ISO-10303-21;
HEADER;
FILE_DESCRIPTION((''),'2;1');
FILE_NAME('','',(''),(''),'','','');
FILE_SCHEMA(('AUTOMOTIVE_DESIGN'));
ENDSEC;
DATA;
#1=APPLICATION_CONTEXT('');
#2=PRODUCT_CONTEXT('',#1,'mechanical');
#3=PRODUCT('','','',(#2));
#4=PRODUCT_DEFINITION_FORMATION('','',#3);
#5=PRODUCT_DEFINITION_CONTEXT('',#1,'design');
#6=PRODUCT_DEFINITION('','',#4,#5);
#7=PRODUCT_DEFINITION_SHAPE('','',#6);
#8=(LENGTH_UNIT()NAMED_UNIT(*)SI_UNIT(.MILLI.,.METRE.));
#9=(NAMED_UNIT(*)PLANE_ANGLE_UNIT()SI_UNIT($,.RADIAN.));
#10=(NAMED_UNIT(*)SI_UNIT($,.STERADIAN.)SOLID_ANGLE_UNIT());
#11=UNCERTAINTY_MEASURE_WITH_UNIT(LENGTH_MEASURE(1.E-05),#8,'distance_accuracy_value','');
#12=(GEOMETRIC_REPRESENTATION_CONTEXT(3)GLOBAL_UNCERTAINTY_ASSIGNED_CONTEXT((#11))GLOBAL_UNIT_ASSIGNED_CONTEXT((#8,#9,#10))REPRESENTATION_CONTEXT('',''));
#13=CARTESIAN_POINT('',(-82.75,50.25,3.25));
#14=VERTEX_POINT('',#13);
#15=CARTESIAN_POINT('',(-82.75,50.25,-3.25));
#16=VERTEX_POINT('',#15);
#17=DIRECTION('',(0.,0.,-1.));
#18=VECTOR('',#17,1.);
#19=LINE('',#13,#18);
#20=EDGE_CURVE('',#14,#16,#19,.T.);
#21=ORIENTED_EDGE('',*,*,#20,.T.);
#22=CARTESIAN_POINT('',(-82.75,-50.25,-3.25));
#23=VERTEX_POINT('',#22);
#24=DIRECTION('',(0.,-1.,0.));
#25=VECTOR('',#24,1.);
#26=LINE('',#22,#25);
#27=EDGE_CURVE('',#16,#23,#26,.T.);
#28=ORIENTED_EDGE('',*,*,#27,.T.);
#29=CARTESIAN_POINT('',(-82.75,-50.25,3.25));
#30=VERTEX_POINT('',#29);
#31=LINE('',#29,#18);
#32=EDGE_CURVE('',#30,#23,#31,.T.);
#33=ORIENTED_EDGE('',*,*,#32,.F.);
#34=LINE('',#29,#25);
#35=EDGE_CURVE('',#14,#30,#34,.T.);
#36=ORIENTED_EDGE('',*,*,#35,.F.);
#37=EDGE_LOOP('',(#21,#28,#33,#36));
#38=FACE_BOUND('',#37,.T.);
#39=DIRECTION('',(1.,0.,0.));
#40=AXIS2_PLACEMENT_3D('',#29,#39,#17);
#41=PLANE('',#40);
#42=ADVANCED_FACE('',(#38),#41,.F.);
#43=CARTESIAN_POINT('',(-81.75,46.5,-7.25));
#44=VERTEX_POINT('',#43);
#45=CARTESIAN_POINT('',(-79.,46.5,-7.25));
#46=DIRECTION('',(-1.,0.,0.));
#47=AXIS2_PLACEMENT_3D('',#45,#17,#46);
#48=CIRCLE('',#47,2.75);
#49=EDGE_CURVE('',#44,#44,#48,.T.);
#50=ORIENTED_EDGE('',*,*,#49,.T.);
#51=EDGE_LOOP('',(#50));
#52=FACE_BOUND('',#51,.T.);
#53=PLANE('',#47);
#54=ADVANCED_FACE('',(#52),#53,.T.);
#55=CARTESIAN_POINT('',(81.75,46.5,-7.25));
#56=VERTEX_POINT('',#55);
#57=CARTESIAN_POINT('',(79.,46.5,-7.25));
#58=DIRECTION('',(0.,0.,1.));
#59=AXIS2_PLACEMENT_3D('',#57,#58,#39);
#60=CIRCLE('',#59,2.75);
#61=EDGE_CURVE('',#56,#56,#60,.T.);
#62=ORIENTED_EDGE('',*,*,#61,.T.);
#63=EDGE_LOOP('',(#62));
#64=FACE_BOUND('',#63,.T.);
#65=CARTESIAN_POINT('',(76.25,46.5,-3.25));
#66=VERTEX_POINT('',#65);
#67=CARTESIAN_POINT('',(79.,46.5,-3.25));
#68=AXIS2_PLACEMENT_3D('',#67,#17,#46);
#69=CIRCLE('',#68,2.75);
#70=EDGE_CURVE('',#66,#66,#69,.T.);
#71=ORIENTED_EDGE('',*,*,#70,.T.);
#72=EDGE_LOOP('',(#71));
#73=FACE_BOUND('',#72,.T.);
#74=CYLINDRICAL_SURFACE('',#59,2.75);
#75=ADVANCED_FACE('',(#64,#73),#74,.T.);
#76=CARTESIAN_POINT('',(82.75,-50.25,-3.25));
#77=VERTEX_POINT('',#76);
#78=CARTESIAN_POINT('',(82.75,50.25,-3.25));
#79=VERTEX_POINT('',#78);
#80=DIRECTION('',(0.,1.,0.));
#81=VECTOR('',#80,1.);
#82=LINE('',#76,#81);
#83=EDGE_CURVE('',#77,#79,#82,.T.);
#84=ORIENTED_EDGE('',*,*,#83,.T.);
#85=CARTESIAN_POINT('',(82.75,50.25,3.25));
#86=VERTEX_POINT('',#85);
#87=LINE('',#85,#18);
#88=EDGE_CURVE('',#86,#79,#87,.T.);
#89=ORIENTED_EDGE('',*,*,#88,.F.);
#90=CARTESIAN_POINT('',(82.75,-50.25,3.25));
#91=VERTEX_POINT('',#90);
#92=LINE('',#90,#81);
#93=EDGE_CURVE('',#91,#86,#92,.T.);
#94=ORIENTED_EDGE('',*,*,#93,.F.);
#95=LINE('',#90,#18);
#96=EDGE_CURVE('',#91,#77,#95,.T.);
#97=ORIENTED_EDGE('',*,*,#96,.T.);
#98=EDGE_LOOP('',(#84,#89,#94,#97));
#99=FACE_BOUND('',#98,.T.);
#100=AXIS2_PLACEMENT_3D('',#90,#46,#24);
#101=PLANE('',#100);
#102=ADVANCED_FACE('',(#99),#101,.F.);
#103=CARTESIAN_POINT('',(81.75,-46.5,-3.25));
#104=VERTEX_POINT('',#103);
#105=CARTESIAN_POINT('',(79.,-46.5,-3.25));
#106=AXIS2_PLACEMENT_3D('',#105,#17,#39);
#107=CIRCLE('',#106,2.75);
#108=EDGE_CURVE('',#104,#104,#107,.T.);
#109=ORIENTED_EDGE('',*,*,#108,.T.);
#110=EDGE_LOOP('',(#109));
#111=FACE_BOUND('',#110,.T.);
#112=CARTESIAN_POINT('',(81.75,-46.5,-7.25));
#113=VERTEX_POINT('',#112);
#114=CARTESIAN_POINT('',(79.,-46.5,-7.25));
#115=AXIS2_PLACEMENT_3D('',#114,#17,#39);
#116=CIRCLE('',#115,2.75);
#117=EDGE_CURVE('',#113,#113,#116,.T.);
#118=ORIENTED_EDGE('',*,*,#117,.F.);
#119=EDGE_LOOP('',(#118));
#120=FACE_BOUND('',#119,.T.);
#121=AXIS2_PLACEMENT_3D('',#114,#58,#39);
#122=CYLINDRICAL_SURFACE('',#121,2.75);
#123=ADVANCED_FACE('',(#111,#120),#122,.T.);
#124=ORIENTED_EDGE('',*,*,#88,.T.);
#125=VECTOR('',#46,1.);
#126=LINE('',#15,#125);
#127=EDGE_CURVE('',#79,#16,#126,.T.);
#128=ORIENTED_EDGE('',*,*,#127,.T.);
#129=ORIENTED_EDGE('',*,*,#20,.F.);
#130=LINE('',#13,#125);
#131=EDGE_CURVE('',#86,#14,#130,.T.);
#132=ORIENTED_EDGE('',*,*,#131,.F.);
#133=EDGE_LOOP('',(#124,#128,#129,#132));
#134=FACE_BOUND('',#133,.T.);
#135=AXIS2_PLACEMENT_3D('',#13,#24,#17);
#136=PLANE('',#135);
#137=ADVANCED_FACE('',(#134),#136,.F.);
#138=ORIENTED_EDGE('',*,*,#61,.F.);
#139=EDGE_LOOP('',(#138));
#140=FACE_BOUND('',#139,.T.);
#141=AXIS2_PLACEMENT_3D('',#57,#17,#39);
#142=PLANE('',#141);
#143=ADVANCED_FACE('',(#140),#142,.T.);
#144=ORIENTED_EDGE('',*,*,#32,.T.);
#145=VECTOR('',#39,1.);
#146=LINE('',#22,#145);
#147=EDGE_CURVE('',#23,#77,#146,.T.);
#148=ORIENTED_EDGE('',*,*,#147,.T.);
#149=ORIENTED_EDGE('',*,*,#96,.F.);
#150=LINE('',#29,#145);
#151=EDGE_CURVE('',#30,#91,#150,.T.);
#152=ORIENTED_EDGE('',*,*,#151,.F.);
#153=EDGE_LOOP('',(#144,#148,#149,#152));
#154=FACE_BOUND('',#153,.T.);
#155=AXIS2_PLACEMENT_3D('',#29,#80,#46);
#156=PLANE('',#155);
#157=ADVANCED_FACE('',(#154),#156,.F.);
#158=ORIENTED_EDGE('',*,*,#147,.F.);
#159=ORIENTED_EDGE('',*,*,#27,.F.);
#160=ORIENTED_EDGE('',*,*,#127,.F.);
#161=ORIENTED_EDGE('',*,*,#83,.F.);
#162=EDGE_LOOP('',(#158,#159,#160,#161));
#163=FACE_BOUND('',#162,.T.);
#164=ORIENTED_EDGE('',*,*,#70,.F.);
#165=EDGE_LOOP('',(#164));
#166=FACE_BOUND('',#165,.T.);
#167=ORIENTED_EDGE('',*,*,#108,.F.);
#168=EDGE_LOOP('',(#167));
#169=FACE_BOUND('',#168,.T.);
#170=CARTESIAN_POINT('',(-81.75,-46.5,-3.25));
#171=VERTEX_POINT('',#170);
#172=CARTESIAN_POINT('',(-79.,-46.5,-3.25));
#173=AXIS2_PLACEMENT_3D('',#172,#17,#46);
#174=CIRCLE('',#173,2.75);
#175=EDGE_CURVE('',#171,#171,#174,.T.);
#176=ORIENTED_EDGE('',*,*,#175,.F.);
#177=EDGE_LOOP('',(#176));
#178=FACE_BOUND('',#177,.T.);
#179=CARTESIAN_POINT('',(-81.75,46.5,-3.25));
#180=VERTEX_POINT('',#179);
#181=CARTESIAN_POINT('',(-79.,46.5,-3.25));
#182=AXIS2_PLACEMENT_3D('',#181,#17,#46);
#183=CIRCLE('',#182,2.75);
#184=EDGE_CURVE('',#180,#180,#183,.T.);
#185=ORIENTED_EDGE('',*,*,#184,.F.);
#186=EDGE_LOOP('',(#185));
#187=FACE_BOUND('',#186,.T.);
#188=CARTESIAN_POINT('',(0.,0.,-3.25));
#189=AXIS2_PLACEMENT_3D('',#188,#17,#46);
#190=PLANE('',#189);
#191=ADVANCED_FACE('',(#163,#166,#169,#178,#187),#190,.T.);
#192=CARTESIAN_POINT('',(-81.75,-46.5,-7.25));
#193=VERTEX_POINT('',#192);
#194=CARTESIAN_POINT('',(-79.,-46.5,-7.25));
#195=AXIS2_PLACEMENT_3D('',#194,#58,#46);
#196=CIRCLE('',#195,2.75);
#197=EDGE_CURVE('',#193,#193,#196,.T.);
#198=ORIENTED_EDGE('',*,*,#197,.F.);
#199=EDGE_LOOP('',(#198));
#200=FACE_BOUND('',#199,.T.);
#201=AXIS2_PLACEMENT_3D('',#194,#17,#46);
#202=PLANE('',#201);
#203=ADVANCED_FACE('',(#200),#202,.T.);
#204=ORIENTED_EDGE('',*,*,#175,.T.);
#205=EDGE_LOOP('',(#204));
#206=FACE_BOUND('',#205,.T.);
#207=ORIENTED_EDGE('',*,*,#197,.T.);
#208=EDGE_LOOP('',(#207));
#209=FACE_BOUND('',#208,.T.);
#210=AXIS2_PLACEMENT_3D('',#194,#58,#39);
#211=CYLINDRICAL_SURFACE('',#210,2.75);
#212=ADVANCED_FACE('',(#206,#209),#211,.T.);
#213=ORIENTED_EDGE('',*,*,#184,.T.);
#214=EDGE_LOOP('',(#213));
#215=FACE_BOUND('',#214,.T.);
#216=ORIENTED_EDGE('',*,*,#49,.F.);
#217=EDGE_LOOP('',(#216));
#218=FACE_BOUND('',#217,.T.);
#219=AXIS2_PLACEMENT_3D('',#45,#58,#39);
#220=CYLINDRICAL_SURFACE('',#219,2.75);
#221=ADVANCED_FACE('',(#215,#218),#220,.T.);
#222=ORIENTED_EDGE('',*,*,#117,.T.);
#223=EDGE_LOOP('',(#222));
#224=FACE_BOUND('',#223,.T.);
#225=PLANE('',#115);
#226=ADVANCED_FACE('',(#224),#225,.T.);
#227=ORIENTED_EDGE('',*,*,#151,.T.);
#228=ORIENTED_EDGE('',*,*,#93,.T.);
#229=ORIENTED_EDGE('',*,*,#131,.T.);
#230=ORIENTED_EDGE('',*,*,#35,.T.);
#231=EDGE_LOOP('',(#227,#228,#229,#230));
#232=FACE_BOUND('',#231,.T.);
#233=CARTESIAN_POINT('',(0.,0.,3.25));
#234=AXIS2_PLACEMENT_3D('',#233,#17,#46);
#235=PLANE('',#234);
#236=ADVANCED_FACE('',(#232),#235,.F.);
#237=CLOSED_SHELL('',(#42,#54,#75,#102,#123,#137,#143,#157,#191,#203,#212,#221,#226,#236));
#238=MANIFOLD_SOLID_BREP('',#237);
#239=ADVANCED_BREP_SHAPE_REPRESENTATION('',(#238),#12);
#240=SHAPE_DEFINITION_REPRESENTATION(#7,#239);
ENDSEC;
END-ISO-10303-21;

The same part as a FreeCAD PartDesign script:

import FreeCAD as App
import Part
import Sketcher

doc = App.newDocument("Part")
body = doc.addObject("PartDesign::Body", "Body")

# Sketch on XY plane
sketch1 = body.newObject("Sketcher::SketchObject", "Sketch")
sketch1.AttachmentSupport = (doc.getObject("XY_Plane"), [""])
sketch1.MapMode = "FlatFace"
sketch1.addGeometry(Part.LineSegment(App.Vector(-83, 50, 0), App.Vector(-83, -50, 0)), False)
sketch1.addGeometry(Part.LineSegment(App.Vector(-83, -50, 0), App.Vector(83, -50, 0)), False)
sketch1.addGeometry(Part.LineSegment(App.Vector(83, -50, 0), App.Vector(83, 50, 0)), False)
sketch1.addGeometry(Part.LineSegment(App.Vector(83, 50, 0), App.Vector(-83, 50, 0)), False)
sketch1.addConstraint(Sketcher.Constraint("Coincident", 0, 2, 1, 1))
sketch1.addConstraint(Sketcher.Constraint("Coincident", 1, 2, 2, 1))
sketch1.addConstraint(Sketcher.Constraint("Coincident", 2, 2, 3, 1))
sketch1.addConstraint(Sketcher.Constraint("Coincident", 3, 2, 0, 1))
sketch1.addConstraint(Sketcher.Constraint("Vertical", 0))
sketch1.addConstraint(Sketcher.Constraint("Horizontal", 1))
sketch1.addConstraint(Sketcher.Constraint("Vertical", 2))
sketch1.addConstraint(Sketcher.Constraint("Horizontal", 3))
sketch1.addConstraint(Sketcher.Constraint("Symmetric", 0, 2, 2, 2, -1, 1))
sketch1.addConstraint(Sketcher.Constraint("DistanceX", 1, 1, 1, 2, 165.5))
sketch1.addConstraint(Sketcher.Constraint("DistanceY", 0, 2, 0, 1, 100.5))
pad1 = body.newObject("PartDesign::Pad", "Pad")
pad1.Profile = sketch1
pad1.Length = 6.5
pad1.Midplane = True

# Sketch on XY plane
sketch2 = body.newObject("Sketcher::SketchObject", "Sketch001")
sketch2.AttachmentSupport = (doc.getObject("XY_Plane"), [""])
sketch2.MapMode = "FlatFace"
sketch2.AttachmentOffset = App.Placement(App.Vector(0, 0, -3.25), App.Rotation())
sketch2.addGeometry(Part.Circle(App.Vector(-79, 46.5, 0), App.Vector(0, 0, 1), 2.8), False)
sketch2.addConstraint(Sketcher.Constraint("Diameter", 0, 5.5))
sketch2.addConstraint(Sketcher.Constraint("DistanceX", 0, 3, -1, 1, 79.0))
sketch2.addConstraint(Sketcher.Constraint("DistanceY", -1, 1, 0, 3, 46.5))
pad2 = body.newObject("PartDesign::Pad", "Pad001")
pad2.Profile = sketch2
pad2.Length = 4
pad2.Reversed = True
doc.recompute()

mirrored = body.newObject("PartDesign::Mirrored", "Mirrored")
mirrored.Originals = [pad2]
mirrored.MirrorPlane = (doc.getObject("XZ_Plane"), [""])
body.Tip = mirrored
doc.recompute()

mirrored2 = body.newObject("PartDesign::Mirrored", "Mirrored001")
mirrored2.Originals = [pad2]
mirrored2.MirrorPlane = (doc.getObject("YZ_Plane"), [""])
body.Tip = mirrored2

# Sketch on XY plane
sketch3 = body.newObject("Sketcher::SketchObject", "Sketch002")
sketch3.AttachmentSupport = (doc.getObject("XY_Plane"), [""])
sketch3.MapMode = "FlatFace"
sketch3.AttachmentOffset = App.Placement(App.Vector(0, 0, -3.25), App.Rotation())
sketch3.addGeometry(Part.Circle(App.Vector(79, -46.5, 0), App.Vector(0, 0, 1), 2.8), False)
sketch3.addConstraint(Sketcher.Constraint("Diameter", 0, 5.5))
sketch3.addConstraint(Sketcher.Constraint("DistanceX", -1, 1, 0, 3, 79.0))
sketch3.addConstraint(Sketcher.Constraint("DistanceY", 0, 3, -1, 1, 46.5))
pad3 = body.newObject("PartDesign::Pad", "Pad002")
pad3.Profile = sketch3
pad3.Length = 4
pad3.Reversed = True

doc.recompute()
